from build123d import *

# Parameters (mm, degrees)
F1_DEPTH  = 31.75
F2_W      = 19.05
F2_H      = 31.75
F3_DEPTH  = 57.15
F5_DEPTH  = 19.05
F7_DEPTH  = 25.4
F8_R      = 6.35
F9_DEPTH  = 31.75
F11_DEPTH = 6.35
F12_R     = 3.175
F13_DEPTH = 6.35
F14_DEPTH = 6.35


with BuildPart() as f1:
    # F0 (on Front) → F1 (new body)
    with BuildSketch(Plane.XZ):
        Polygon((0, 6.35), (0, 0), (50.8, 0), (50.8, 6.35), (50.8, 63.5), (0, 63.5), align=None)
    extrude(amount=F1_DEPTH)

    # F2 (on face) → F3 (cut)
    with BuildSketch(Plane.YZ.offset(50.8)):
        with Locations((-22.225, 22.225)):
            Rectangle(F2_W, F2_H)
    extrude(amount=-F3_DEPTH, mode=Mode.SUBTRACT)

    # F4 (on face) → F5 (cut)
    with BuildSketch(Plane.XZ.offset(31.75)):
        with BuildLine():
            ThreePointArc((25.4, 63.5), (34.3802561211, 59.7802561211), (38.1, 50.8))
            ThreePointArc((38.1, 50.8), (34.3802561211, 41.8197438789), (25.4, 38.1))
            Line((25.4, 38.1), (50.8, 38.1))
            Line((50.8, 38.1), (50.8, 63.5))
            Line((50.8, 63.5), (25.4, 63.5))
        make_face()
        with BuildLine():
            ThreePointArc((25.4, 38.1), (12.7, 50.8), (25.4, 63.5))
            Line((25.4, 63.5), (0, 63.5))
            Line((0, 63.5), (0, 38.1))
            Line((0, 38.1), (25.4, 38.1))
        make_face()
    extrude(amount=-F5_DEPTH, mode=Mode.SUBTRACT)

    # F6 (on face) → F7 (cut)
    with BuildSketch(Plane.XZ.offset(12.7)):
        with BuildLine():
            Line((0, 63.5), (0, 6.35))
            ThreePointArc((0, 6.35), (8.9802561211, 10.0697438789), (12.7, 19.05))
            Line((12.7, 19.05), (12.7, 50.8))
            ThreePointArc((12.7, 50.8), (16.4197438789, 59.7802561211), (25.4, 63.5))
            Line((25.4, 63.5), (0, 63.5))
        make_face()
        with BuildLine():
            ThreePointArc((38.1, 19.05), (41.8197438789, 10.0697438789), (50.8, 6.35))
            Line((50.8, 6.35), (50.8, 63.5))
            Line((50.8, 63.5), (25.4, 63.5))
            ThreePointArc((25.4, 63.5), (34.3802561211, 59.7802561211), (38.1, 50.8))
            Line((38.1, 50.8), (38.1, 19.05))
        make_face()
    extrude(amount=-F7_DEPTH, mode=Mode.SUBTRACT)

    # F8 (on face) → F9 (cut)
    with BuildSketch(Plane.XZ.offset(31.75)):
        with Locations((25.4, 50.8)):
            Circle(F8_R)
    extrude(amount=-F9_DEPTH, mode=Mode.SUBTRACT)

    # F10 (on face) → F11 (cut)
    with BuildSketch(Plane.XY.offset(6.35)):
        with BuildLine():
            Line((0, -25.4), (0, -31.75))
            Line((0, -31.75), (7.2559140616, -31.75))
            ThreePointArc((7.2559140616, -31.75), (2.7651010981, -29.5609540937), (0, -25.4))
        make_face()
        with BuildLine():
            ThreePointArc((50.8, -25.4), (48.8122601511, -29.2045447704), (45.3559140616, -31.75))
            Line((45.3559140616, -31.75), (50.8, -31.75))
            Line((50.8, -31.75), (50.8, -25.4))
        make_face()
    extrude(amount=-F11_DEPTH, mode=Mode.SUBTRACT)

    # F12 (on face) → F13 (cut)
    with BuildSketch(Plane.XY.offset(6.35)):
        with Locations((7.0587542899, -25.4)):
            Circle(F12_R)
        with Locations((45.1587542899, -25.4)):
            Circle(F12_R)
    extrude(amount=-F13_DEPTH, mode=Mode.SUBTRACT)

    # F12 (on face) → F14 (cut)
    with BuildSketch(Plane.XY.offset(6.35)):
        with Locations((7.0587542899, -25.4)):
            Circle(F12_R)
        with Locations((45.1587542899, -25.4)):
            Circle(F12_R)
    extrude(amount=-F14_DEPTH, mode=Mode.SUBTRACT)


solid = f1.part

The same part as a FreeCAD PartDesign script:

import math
import FreeCAD as App
import Part
import Sketcher
from FreeCAD import Vector
Q = App.Units.Quantity

doc = App.newDocument("Part")
params = doc.addObject("Spreadsheet::Sheet", "Params")
for row, (alias, value) in enumerate([
    ("sketch1_width", "2 in"),
    ("sketch1_height", "2.5 in"),
    ("pad1_length", "1.25 in"),
    ("sketch2_width", "0.75 in"),
    ("sketch2_height", "1.25 in"),
    ("pocket1_length", "2.25 in"),
    ("sketch3_radius", "0.5 in"),
    ("pocket2_length", "0.75 in"),
    ("sketch4_radius", "0.5 in"),
    ("sketch4_height", "2.25 in"),
    ("pocket3_length", "1 in"),
    ("sketch5_diameter", "0.5 in"),
    ("pocket4_length", "1.25 in"),
    ("sketch6_radius", "0.375 in"),
    ("sketch6_height", "0.25 in"),
    ("pocket5_length", "0.25 in"),
    ("sketch7_diameter", "0.25 in"),
    ("pocket6_length", "0.25 in"),
    ("sketch8_diameter", "0.25 in"),
    ("pocket7_length", "0.25 in"),
], start=1):
    params.set(f"A{row}", alias)
    params.set(f"B{row}", "=" + value)
    params.setAlias(f"B{row}", alias)

body = doc.addObject("PartDesign::Body", "Body")

sketch1 = body.newObject("Sketcher::SketchObject", "Sketch")
sketch1.AttachmentSupport = (doc.getObject("XZ_Plane"), [""])
sketch1.MapMode = "FlatFace"
sketch1.addGeometry([
    Part.LineSegment(Vector(0, 0, 0), Vector(51, 0, 0)),
    Part.LineSegment(Vector(51, 0, 0), Vector(51, 64, 0)),
    Part.LineSegment(Vector(51, 64, 0), Vector(0, 64, 0)),
    Part.LineSegment(Vector(0, 64, 0), Vector(0, 0, 0)),
], False)
sketch1.addConstraint([
    Sketcher.Constraint("Coincident", 0, 2, 1, 1),
    Sketcher.Constraint("Coincident", 1, 2, 2, 1),
    Sketcher.Constraint("Coincident", 2, 2, 3, 1),
    Sketcher.Constraint("Coincident", 3, 2, 0, 1),
    Sketcher.Constraint("Horizontal", 0),
    Sketcher.Constraint("Vertical", 1),
    Sketcher.Constraint("Horizontal", 2),
    Sketcher.Constraint("Vertical", 3),
    Sketcher.Constraint("Coincident", 3, 2, -1, 1),
    Sketcher.Constraint("DistanceX", 0, 1, 0, 2, Q("2 in")),
    Sketcher.Constraint("DistanceY", 1, 1, 1, 2, Q("2.5 in")),
])
sketch1.setExpression("Constraints[9]", "Params.sketch1_width")
sketch1.setExpression("Constraints[10]", "Params.sketch1_height")
pad1 = body.newObject("PartDesign::Pad", "Pad")
pad1.Profile = sketch1
pad1.setExpression("Length", "Params.pad1_length")

sketch2 = body.newObject("Sketcher::SketchObject", "Sketch001")
sketch2.AttachmentSupport = (doc.getObject("YZ_Plane"), [""])
sketch2.MapMode = "FlatFace"
sketch2.AttachmentOffset = App.Placement(Vector(0, 0, 2 * 25.4), App.Rotation())
sketch2.addGeometry([
    Part.LineSegment(Vector(-32, 38, 0), Vector(-32, 6, 0)),
    Part.LineSegment(Vector(-32, 6, 0), Vector(-13, 6, 0)),
    Part.LineSegment(Vector(-13, 6, 0), Vector(-13, 38, 0)),
    Part.LineSegment(Vector(-13, 38, 0), Vector(-32, 38, 0)),
], False)
sketch2.addConstraint([
    Sketcher.Constraint("Coincident", 0, 2, 1, 1),
    Sketcher.Constraint("Coincident", 1, 2, 2, 1),
    Sketcher.Constraint("Coincident", 2, 2, 3, 1),
    Sketcher.Constraint("Coincident", 3, 2, 0, 1),
    Sketcher.Constraint("Vertical", 0),
    Sketcher.Constraint("Horizontal", 1),
    Sketcher.Constraint("Vertical", 2),
    Sketcher.Constraint("Horizontal", 3),
    Sketcher.Constraint("DistanceX", 1, 1, 1, 2, Q("0.75 in")),
    Sketcher.Constraint("DistanceY", 0, 2, 0, 1, Q("1.25 in")),
    Sketcher.Constraint("DistanceX", 1, 2, -1, 1, Q("0.5 in")),
    Sketcher.Constraint("DistanceY", -1, 1, 2, 2, Q("1.5 in")),
])
sketch2.setExpression("Constraints[8]", "Params.sketch2_width")
sketch2.setExpression("Constraints[9]", "Params.sketch2_height")
pocket1 = body.newObject("PartDesign::Pocket", "Pocket")
pocket1.Profile = sketch2
pocket1.setExpression("Length", "Params.pocket1_length")

sketch3 = body.newObject("Sketcher::SketchObject", "Sketch002")
sketch3.AttachmentSupport = (doc.getObject("XZ_Plane"), [""])
sketch3.MapMode = "FlatFace"
sketch3.AttachmentOffset = App.Placement(Vector(0, 0, 1.25 * 25.4), App.Rotation())
sketch3.addGeometry([
    Part.ArcOfCircle(Part.Circle(Vector(25, 51, 0), Vector(0, 0, 1), 13), math.radians(0), math.radians(90)),
    Part.ArcOfCircle(Part.Circle(Vector(25, 51, 0), Vector(0, 0, 1), 13), math.radians(-90), math.radians(0)),
    Part.LineSegment(Vector(25, 38, 0), Vector(51, 38, 0)),
    Part.LineSegment(Vector(51, 38, 0), Vector(51, 64, 0)),
    Part.LineSegment(Vector(51, 64, 0), Vector(25, 64, 0)),
    Part.ArcOfCircle(Part.Circle(Vector(25, 51, 0), Vector(0, 0, 1), 13), math.radians(90), math.radians(270)),
    Part.LineSegment(Vector(25, 64, 0), Vector(0, 64, 0)),
    Part.LineSegment(Vector(0, 64, 0), Vector(0, 38, 0)),
    Part.LineSegment(Vector(0, 38, 0), Vector(25, 38, 0)),
], False)
sketch3.addConstraint([
    Sketcher.Constraint("Tangent", 0, 1, 1, 2),
    Sketcher.Constraint("Tangent", 1, 1, 2, 1),
    Sketcher.Constraint("Coincident", 2, 2, 3, 1),
    Sketcher.Constraint("Coincident", 3, 2, 4, 1),
    Sketcher.Constraint("Tangent", 4, 2, 0, 2),
    Sketcher.Constraint("Tangent", 5, 1, 6, 1),
    Sketcher.Constraint("Coincident", 6, 2, 7, 1),
    Sketcher.Constraint("Coincident", 7, 2, 8, 1),
    Sketcher.Constraint("Tangent", 8, 2, 5, 2),
    Sketcher.Constraint("Horizontal", 2),
    Sketcher.Constraint("Vertical", 3),
    Sketcher.Constraint("Horizontal", 4),
    Sketcher.Constraint("Horizontal", 6),
    Sketcher.Constraint("Vertical", 7),
    Sketcher.Constraint("Horizontal", 8),
    Sketcher.Constraint("Coincident", 5, 3, 0, 3),
    Sketcher.Constraint("Coincident", 8, 2, 1, 1),
    Sketcher.Constraint("PointOnObject", 6, 2, -2),
    Sketcher.Constraint("Horizontal", 5, 3, 0, 1),
    Sketcher.Constraint("Equal", 4, 6),
    Sketcher.Constraint("Equal", 8, 3),
    Sketcher.Constraint("Radius", 0, Q("0.5 in")),
    Sketcher.Constraint("DistanceY", -1, 1, 0, 3, Q("2 in")),
])
sketch3.setExpression("Constraints[21]", "Params.sketch3_radius")
pocket2 = body.newObject("PartDesign::Pocket", "Pocket001")
pocket2.Profile = sketch3
pocket2.setExpression("Length", "Params.pocket2_length")

sketch4 = body.newObject("Sketcher::SketchObject", "Sketch003")
sketch4.AttachmentSupport = (doc.getObject("XZ_Plane"), [""])
sketch4.MapMode = "FlatFace"
sketch4.AttachmentOffset = App.Placement(Vector(0, 0, 0.5 * 25.4), App.Rotation())
sketch4.addGeometry([
    Part.LineSegment(Vector(0, 64, 0), Vector(0, 6, 0)),
    Part.ArcOfCircle(Part.Circle(Vector(0, 19, 0), Vector(0, 0, 1), 13), math.radians(-90), math.radians(0)),
    Part.LineSegment(Vector(13, 19, 0), Vector(13, 51, 0)),
    Part.ArcOfCircle(Part.Circle(Vector(25, 51, 0), Vector(0, 0, 1), 13), math.radians(90), math.radians(180)),
    Part.LineSegment(Vector(25, 64, 0), Vector(0, 64, 0)),
    Part.ArcOfCircle(Part.Circle(Vector(51, 19, 0), Vector(0, 0, 1), 13), math.radians(180), math.radians(270)),
    Part.LineSegment(Vector(51, 6, 0), Vector(51, 64, 0)),
    Part.LineSegment(Vector(51, 64, 0), Vector(25, 64, 0)),
    Part.ArcOfCircle(Part.Circle(Vector(25, 51, 0), Vector(0, 0, 1), 13), math.radians(0), math.radians(90)),
    Part.LineSegment(Vector(38, 51, 0), Vector(38, 19, 0)),
], False)
sketch4.addConstraint([
    Sketcher.Constraint("Coincident", 0, 2, 1, 1),
    Sketcher.Constraint("Tangent", 1, 2, 2, 1),
    Sketcher.Constraint("Tangent", 2, 2, 3, 2),
    Sketcher.Constraint("Tangent", 3, 1, 4, 1),
    Sketcher.Constraint("Coincident", 4, 2, 0, 1),
    Sketcher.Constraint("Coincident", 5, 2, 6, 1),
    Sketcher.Constraint("Coincident", 6, 2, 7, 1),
    Sketcher.Constraint("Tangent", 7, 2, 8, 2),
    Sketcher.Constraint("Tangent", 8, 1, 9, 1),
    Sketcher.Constraint("Tangent", 9, 2, 5, 1),
    Sketcher.Constraint("Vertical", 0),
    Sketcher.Constraint("Vertical", 2),
    Sketcher.Constraint("Horizontal", 4),
    Sketcher.Constraint("Vertical", 6),
    Sketcher.Constraint("Horizontal", 7),
    Sketcher.Constraint("Vertical", 9),
    Sketcher.Constraint("Coincident", 8, 3, 3, 3),
    Sketcher.Constraint("Equal", 1, 3),
    Sketcher.Constraint("Equal", 3, 5),
    Sketcher.Constraint("Equal", 5, 8),
    Sketcher.Constraint("PointOnObject", 1, 3, -2),
    Sketcher.Constraint("PointOnObject", 0, 2, -2),
    Sketcher.Constraint("Horizontal", 1, 3, 5, 3),
    Sketcher.Constraint("Equal", 4, 7),
    Sketcher.Constraint("Radius", 1, Q("0.5 in")),
    Sketcher.Constraint("DistanceY", -1, 1, 3, 3, Q("2 in")),
    Sketcher.Constraint("DistanceY", 0, 2, 0, 1, Q("2.25 in")),
])
sketch4.setExpression("Constraints[24]", "Params.sketch4_radius")
sketch4.setExpression("Constraints[26]", "Params.sketch4_height")
pocket3 = body.newObject("PartDesign::Pocket", "Pocket002")
pocket3.Profile = sketch4
pocket3.setExpression("Length", "Params.pocket3_length")

sketch5 = body.newObject("Sketcher::SketchObject", "Sketch004")
sketch5.AttachmentSupport = (doc.getObject("XZ_Plane"), [""])
sketch5.MapMode = "FlatFace"
sketch5.AttachmentOffset = App.Placement(Vector(0, 0, 1.25 * 25.4), App.Rotation())
sketch5.addGeometry(Part.Circle(Vector(25, 51, 0), Vector(0, 0, 1), 6), False)
sketch5.addConstraint([
    Sketcher.Constraint("Diameter", 0, Q("0.5 in")),
    Sketcher.Constraint("DistanceX", -1, 1, 0, 3, Q("1 in")),
    Sketcher.Constraint("DistanceY", -1, 1, 0, 3, Q("2 in")),
])
sketch5.setExpression("Constraints[0]", "Params.sketch5_diameter")
pocket4 = body.newObject("PartDesign::Pocket", "Pocket003")
pocket4.Profile = sketch5
pocket4.setExpression("Length", "Params.pocket4_length")

sketch6 = body.newObject("Sketcher::SketchObject", "Sketch005")
sketch6.AttachmentSupport = (doc.getObject("XY_Plane"), [""])
sketch6.MapMode = "FlatFace"
sketch6.AttachmentOffset = App.Placement(Vector(0, 0, 0.25 * 25.4), App.Rotation())
sketch6.addGeometry([
    Part.LineSegment(Vector(0, -25, 0), Vector(0, -32, 0)),
    Part.LineSegment(Vector(0, -32, 0), Vector(7, -32, 0)),
    Part.ArcOfCircle(Part.Circle(Vector(9, -22, 0), Vector(0, 0, 1), 10), math.radians(-162), math.radians(-101)),
    Part.ArcOfCircle(Part.Circle(Vector(42, -23, 0), Vector(0, 0, 1), 10), math.radians(-67), math.radians(-15)),
    Part.LineSegment(Vector(45, -32, 0), Vector(51, -32, 0)),
    Part.LineSegment(Vector(51, -32, 0), Vector(51, -25, 0)),
], False)
sketch6.addConstraint([
    Sketcher.Constraint("Coincident", 0, 2, 1, 1),
    Sketcher.Constraint("Coincident", 1, 2, 2, 2),
    Sketcher.Constraint("Coincident", 2, 1, 0, 1),
    Sketcher.Constraint("Coincident", 3, 1, 4, 1),
    Sketcher.Constraint("Coincident", 4, 2, 5, 1),
    Sketcher.Constraint("Coincident", 5, 2, 3, 2),
    Sketcher.Constraint("Vertical", 0),
    Sketcher.Constraint("Horizontal", 1),
    Sketcher.Constraint("Horizontal", 4),
    Sketcher.Constraint("Vertical", 5),
    Sketcher.Constraint("Equal", 2, 3),
    Sketcher.Constraint("PointOnObject", 0, 2, -2),
    Sketcher.Constraint("Horizontal", 1, 2, 3, 1),
    Sketcher.Constraint("Horizontal", 2, 1, 5, 2),
    Sketcher.Constraint("DistanceY", 2, 1, -1, 1, Q("1 in")),
    Sketcher.Constraint("DistanceX", -1, 1, 4, 2, Q("2 in")),
    Sketcher.Constraint("Radius", 2, Q("0.375 in")),
    Sketcher.Constraint("DistanceY", 0, 2, 0, 1, Q("0.25 in")),
    Sketcher.Constraint("DistanceX", 1, 2, 3, 1, Q("1.5 in")),
    Sketcher.Constraint("DistanceX", 1, 1, 1, 2, 7.255914),
])
sketch6.setExpression("Constraints[16]", "Params.sketch6_radius")
sketch6.setExpression("Constraints[17]", "Params.sketch6_height")
pocket5 = body.newObject("PartDesign::Pocket", "Pocket004")
pocket5.Profile = sketch6
pocket5.setExpression("Length", "Params.pocket5_length")

sketch7 = body.newObject("Sketcher::SketchObject", "Sketch006")
sketch7.AttachmentSupport = (doc.getObject("XY_Plane"), [""])
sketch7.MapMode = "FlatFace"
sketch7.AttachmentOffset = App.Placement(Vector(0, 0, 0.25 * 25.4), App.Rotation())
sketch7.addGeometry([
    Part.Circle(Vector(7.1, -25.4, 0), Vector(0, 0, 1), 3.2),
    Part.Circle(Vector(45.2, -25.4, 0), Vector(0, 0, 1), 3.2),
], False)
sketch7.addConstraint([
    Sketcher.Constraint("Equal", 0, 1),
    Sketcher.Constraint("Horizontal", 0, 3, 1, 3),
    Sketcher.Constraint("Diameter", 0, Q("0.25 in")),
    Sketcher.Constraint("DistanceY", 0, 3, -1, 1, Q("1 in")),
    Sketcher.Constraint("DistanceX", 0, 3, 1, 3, Q("1.5 in")),
    Sketcher.Constraint("DistanceX", -1, 1, 0, 3, 7.058754),
])
sketch7.setExpression("Constraints[2]", "Params.sketch7_diameter")
pocket6 = body.newObject("PartDesign::Pocket", "Pocket005")
pocket6.Profile = sketch7
pocket6.setExpression("Length", "Params.pocket6_length")

sketch8 = body.newObject("Sketcher::SketchObject", "Sketch007")
sketch8.AttachmentSupport = (doc.getObject("XY_Plane"), [""])
sketch8.MapMode = "FlatFace"
sketch8.AttachmentOffset = App.Placement(Vector(0, 0, 0.25 * 25.4), App.Rotation())
sketch8.addGeometry([
    Part.Circle(Vector(7.1, -25.4, 0), Vector(0, 0, 1), 3.2),
    Part.Circle(Vector(45.2, -25.4, 0), Vector(0, 0, 1), 3.2),
], False)
sketch8.addConstraint([
    Sketcher.Constraint("Equal", 0, 1),
    Sketcher.Constraint("Horizontal", 0, 3, 1, 3),
    Sketcher.Constraint("Diameter", 0, Q("0.25 in")),
    Sketcher.Constraint("DistanceY", 0, 3, -1, 1, Q("1 in")),
    Sketcher.Constraint("DistanceX", 0, 3, 1, 3, Q("1.5 in")),
    Sketcher.Constraint("DistanceX", -1, 1, 0, 3, 7.058754),
])
sketch8.setExpression("Constraints[2]", "Params.sketch8_diameter")
pocket7 = body.newObject("PartDesign::Pocket", "Pocket006")
pocket7.Profile = sketch8
pocket7.setExpression("Length", "Params.pocket7_length")

doc.recompute()
